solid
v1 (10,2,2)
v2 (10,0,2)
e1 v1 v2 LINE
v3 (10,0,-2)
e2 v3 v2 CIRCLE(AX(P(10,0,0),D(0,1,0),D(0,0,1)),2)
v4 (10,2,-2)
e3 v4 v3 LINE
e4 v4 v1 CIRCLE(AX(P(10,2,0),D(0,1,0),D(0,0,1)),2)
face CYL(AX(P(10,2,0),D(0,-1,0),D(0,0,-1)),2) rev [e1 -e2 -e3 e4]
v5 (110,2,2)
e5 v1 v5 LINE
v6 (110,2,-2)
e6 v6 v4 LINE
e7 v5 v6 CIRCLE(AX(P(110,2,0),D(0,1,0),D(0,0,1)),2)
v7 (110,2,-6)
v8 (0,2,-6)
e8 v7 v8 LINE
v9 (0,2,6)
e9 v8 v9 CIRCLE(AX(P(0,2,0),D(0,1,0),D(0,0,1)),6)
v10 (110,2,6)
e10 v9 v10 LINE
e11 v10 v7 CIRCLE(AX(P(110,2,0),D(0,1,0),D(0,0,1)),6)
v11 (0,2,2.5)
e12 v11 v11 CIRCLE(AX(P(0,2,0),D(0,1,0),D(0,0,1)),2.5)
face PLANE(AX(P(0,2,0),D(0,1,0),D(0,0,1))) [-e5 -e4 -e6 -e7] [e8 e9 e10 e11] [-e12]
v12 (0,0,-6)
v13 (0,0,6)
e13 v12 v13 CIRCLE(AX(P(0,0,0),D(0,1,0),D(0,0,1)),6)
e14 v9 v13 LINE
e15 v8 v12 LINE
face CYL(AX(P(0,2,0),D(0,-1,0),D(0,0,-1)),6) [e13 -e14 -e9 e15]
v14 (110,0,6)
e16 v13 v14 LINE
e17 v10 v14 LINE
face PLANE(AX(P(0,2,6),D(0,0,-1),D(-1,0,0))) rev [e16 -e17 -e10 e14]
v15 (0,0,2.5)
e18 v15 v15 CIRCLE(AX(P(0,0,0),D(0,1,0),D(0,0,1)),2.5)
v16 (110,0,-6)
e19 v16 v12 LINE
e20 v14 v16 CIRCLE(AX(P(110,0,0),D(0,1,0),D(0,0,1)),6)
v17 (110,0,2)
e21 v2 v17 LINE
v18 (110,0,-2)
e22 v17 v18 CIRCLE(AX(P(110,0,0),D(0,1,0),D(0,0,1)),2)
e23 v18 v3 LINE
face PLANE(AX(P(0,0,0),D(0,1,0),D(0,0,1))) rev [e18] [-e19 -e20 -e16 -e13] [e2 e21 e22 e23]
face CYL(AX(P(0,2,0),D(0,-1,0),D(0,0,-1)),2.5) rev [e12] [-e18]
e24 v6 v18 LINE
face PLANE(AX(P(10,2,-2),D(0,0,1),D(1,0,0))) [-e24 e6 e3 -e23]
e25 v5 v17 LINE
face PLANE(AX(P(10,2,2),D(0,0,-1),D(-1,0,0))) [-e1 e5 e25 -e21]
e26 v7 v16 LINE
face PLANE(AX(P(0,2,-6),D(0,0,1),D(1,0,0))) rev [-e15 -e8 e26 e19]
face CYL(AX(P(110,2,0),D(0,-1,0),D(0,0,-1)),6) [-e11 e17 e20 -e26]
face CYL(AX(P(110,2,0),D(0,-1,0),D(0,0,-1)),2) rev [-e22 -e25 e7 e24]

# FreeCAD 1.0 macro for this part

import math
import FreeCAD as App
import Part
import Sketcher
Q = App.Units.Quantity

doc = App.newDocument("Part")
body = doc.addObject("PartDesign::Body", "Body")

# Sketch on XZ plane
sketch1 = doc.addObject("Sketcher::SketchObject", "Sketch")
body.addObject(sketch1)
sketch1.AttachmentSupport = (doc.XZ_Plane, [""])
sketch1.MapMode = "FlatFace"
sketch1.addGeometry([
    Part.LineSegment(App.Vector(110, -6, 0), App.Vector(0, -6, 0)),  # 0
    Part.ArcOfCircle(Part.Circle(App.Vector(0, 0, 0), App.Vector(0, 0, 1), 6), math.radians(90), math.radians(270)),  # 1
    Part.LineSegment(App.Vector(0, 6, 0), App.Vector(110, 6, 0)),  # 2
    Part.ArcOfCircle(Part.Circle(App.Vector(110, 0, 0), App.Vector(0, 0, 1), 6), math.radians(-90), math.radians(90)),  # 3
    Part.LineSegment(App.Vector(10, -2, 0), App.Vector(110, -2, 0)),  # 4
    Part.ArcOfCircle(Part.Circle(App.Vector(110, 0, 0), App.Vector(0, 0, 1), 2), math.radians(-90), math.radians(90)),  # 5
    Part.LineSegment(App.Vector(110, 2, 0), App.Vector(10, 2, 0)),  # 6
    Part.ArcOfCircle(Part.Circle(App.Vector(10, 0, 0), App.Vector(0, 0, 1), 2), math.radians(90), math.radians(270)),  # 7
    Part.Circle(App.Vector(0, 0, 0), App.Vector(0, 0, 1), 2.5),  # 8
], False)
sketch1.addConstraint([
    Sketcher.Constraint("Tangent", 0, 2, 1, 2),
    Sketcher.Constraint("Tangent", 1, 1, 2, 1),
    Sketcher.Constraint("Tangent", 2, 2, 3, 2),
    Sketcher.Constraint("Tangent", 3, 1, 0, 1),
    Sketcher.Constraint("Tangent", 4, 2, 5, 1),
    Sketcher.Constraint("Tangent", 5, 2, 6, 1),
    Sketcher.Constraint("Tangent", 6, 2, 7, 1),
    Sketcher.Constraint("Tangent", 7, 2, 4, 1),
    Sketcher.Constraint("Horizontal", 0),
    Sketcher.Constraint("Horizontal", 2),
    Sketcher.Constraint("Horizontal", 4),
    Sketcher.Constraint("Horizontal", 6),
    Sketcher.Constraint("Coincident", 1, 3, -1, 1),
    Sketcher.Constraint("Coincident", 8, 3, -1, 1),
    Sketcher.Constraint("Coincident", 5, 3, 3, 3),
    Sketcher.Constraint("Diameter", 8, Q("5 mm")),
    Sketcher.Constraint("Radius", 1, Q("6 mm")),
    Sketcher.Constraint("Radius", 5, Q("2 mm")),
    Sketcher.Constraint("DistanceX", 0, 2, 0, 1, Q("110 mm")),
    Sketcher.Constraint("DistanceX", 4, 1, 4, 2, Q("100 mm")),
])
pad1 = doc.addObject("PartDesign::Pad", "Pad")
body.addObject(pad1)
pad1.Profile = sketch1
pad1.Length = 2
pad1.Reversed = True

doc.recompute()
